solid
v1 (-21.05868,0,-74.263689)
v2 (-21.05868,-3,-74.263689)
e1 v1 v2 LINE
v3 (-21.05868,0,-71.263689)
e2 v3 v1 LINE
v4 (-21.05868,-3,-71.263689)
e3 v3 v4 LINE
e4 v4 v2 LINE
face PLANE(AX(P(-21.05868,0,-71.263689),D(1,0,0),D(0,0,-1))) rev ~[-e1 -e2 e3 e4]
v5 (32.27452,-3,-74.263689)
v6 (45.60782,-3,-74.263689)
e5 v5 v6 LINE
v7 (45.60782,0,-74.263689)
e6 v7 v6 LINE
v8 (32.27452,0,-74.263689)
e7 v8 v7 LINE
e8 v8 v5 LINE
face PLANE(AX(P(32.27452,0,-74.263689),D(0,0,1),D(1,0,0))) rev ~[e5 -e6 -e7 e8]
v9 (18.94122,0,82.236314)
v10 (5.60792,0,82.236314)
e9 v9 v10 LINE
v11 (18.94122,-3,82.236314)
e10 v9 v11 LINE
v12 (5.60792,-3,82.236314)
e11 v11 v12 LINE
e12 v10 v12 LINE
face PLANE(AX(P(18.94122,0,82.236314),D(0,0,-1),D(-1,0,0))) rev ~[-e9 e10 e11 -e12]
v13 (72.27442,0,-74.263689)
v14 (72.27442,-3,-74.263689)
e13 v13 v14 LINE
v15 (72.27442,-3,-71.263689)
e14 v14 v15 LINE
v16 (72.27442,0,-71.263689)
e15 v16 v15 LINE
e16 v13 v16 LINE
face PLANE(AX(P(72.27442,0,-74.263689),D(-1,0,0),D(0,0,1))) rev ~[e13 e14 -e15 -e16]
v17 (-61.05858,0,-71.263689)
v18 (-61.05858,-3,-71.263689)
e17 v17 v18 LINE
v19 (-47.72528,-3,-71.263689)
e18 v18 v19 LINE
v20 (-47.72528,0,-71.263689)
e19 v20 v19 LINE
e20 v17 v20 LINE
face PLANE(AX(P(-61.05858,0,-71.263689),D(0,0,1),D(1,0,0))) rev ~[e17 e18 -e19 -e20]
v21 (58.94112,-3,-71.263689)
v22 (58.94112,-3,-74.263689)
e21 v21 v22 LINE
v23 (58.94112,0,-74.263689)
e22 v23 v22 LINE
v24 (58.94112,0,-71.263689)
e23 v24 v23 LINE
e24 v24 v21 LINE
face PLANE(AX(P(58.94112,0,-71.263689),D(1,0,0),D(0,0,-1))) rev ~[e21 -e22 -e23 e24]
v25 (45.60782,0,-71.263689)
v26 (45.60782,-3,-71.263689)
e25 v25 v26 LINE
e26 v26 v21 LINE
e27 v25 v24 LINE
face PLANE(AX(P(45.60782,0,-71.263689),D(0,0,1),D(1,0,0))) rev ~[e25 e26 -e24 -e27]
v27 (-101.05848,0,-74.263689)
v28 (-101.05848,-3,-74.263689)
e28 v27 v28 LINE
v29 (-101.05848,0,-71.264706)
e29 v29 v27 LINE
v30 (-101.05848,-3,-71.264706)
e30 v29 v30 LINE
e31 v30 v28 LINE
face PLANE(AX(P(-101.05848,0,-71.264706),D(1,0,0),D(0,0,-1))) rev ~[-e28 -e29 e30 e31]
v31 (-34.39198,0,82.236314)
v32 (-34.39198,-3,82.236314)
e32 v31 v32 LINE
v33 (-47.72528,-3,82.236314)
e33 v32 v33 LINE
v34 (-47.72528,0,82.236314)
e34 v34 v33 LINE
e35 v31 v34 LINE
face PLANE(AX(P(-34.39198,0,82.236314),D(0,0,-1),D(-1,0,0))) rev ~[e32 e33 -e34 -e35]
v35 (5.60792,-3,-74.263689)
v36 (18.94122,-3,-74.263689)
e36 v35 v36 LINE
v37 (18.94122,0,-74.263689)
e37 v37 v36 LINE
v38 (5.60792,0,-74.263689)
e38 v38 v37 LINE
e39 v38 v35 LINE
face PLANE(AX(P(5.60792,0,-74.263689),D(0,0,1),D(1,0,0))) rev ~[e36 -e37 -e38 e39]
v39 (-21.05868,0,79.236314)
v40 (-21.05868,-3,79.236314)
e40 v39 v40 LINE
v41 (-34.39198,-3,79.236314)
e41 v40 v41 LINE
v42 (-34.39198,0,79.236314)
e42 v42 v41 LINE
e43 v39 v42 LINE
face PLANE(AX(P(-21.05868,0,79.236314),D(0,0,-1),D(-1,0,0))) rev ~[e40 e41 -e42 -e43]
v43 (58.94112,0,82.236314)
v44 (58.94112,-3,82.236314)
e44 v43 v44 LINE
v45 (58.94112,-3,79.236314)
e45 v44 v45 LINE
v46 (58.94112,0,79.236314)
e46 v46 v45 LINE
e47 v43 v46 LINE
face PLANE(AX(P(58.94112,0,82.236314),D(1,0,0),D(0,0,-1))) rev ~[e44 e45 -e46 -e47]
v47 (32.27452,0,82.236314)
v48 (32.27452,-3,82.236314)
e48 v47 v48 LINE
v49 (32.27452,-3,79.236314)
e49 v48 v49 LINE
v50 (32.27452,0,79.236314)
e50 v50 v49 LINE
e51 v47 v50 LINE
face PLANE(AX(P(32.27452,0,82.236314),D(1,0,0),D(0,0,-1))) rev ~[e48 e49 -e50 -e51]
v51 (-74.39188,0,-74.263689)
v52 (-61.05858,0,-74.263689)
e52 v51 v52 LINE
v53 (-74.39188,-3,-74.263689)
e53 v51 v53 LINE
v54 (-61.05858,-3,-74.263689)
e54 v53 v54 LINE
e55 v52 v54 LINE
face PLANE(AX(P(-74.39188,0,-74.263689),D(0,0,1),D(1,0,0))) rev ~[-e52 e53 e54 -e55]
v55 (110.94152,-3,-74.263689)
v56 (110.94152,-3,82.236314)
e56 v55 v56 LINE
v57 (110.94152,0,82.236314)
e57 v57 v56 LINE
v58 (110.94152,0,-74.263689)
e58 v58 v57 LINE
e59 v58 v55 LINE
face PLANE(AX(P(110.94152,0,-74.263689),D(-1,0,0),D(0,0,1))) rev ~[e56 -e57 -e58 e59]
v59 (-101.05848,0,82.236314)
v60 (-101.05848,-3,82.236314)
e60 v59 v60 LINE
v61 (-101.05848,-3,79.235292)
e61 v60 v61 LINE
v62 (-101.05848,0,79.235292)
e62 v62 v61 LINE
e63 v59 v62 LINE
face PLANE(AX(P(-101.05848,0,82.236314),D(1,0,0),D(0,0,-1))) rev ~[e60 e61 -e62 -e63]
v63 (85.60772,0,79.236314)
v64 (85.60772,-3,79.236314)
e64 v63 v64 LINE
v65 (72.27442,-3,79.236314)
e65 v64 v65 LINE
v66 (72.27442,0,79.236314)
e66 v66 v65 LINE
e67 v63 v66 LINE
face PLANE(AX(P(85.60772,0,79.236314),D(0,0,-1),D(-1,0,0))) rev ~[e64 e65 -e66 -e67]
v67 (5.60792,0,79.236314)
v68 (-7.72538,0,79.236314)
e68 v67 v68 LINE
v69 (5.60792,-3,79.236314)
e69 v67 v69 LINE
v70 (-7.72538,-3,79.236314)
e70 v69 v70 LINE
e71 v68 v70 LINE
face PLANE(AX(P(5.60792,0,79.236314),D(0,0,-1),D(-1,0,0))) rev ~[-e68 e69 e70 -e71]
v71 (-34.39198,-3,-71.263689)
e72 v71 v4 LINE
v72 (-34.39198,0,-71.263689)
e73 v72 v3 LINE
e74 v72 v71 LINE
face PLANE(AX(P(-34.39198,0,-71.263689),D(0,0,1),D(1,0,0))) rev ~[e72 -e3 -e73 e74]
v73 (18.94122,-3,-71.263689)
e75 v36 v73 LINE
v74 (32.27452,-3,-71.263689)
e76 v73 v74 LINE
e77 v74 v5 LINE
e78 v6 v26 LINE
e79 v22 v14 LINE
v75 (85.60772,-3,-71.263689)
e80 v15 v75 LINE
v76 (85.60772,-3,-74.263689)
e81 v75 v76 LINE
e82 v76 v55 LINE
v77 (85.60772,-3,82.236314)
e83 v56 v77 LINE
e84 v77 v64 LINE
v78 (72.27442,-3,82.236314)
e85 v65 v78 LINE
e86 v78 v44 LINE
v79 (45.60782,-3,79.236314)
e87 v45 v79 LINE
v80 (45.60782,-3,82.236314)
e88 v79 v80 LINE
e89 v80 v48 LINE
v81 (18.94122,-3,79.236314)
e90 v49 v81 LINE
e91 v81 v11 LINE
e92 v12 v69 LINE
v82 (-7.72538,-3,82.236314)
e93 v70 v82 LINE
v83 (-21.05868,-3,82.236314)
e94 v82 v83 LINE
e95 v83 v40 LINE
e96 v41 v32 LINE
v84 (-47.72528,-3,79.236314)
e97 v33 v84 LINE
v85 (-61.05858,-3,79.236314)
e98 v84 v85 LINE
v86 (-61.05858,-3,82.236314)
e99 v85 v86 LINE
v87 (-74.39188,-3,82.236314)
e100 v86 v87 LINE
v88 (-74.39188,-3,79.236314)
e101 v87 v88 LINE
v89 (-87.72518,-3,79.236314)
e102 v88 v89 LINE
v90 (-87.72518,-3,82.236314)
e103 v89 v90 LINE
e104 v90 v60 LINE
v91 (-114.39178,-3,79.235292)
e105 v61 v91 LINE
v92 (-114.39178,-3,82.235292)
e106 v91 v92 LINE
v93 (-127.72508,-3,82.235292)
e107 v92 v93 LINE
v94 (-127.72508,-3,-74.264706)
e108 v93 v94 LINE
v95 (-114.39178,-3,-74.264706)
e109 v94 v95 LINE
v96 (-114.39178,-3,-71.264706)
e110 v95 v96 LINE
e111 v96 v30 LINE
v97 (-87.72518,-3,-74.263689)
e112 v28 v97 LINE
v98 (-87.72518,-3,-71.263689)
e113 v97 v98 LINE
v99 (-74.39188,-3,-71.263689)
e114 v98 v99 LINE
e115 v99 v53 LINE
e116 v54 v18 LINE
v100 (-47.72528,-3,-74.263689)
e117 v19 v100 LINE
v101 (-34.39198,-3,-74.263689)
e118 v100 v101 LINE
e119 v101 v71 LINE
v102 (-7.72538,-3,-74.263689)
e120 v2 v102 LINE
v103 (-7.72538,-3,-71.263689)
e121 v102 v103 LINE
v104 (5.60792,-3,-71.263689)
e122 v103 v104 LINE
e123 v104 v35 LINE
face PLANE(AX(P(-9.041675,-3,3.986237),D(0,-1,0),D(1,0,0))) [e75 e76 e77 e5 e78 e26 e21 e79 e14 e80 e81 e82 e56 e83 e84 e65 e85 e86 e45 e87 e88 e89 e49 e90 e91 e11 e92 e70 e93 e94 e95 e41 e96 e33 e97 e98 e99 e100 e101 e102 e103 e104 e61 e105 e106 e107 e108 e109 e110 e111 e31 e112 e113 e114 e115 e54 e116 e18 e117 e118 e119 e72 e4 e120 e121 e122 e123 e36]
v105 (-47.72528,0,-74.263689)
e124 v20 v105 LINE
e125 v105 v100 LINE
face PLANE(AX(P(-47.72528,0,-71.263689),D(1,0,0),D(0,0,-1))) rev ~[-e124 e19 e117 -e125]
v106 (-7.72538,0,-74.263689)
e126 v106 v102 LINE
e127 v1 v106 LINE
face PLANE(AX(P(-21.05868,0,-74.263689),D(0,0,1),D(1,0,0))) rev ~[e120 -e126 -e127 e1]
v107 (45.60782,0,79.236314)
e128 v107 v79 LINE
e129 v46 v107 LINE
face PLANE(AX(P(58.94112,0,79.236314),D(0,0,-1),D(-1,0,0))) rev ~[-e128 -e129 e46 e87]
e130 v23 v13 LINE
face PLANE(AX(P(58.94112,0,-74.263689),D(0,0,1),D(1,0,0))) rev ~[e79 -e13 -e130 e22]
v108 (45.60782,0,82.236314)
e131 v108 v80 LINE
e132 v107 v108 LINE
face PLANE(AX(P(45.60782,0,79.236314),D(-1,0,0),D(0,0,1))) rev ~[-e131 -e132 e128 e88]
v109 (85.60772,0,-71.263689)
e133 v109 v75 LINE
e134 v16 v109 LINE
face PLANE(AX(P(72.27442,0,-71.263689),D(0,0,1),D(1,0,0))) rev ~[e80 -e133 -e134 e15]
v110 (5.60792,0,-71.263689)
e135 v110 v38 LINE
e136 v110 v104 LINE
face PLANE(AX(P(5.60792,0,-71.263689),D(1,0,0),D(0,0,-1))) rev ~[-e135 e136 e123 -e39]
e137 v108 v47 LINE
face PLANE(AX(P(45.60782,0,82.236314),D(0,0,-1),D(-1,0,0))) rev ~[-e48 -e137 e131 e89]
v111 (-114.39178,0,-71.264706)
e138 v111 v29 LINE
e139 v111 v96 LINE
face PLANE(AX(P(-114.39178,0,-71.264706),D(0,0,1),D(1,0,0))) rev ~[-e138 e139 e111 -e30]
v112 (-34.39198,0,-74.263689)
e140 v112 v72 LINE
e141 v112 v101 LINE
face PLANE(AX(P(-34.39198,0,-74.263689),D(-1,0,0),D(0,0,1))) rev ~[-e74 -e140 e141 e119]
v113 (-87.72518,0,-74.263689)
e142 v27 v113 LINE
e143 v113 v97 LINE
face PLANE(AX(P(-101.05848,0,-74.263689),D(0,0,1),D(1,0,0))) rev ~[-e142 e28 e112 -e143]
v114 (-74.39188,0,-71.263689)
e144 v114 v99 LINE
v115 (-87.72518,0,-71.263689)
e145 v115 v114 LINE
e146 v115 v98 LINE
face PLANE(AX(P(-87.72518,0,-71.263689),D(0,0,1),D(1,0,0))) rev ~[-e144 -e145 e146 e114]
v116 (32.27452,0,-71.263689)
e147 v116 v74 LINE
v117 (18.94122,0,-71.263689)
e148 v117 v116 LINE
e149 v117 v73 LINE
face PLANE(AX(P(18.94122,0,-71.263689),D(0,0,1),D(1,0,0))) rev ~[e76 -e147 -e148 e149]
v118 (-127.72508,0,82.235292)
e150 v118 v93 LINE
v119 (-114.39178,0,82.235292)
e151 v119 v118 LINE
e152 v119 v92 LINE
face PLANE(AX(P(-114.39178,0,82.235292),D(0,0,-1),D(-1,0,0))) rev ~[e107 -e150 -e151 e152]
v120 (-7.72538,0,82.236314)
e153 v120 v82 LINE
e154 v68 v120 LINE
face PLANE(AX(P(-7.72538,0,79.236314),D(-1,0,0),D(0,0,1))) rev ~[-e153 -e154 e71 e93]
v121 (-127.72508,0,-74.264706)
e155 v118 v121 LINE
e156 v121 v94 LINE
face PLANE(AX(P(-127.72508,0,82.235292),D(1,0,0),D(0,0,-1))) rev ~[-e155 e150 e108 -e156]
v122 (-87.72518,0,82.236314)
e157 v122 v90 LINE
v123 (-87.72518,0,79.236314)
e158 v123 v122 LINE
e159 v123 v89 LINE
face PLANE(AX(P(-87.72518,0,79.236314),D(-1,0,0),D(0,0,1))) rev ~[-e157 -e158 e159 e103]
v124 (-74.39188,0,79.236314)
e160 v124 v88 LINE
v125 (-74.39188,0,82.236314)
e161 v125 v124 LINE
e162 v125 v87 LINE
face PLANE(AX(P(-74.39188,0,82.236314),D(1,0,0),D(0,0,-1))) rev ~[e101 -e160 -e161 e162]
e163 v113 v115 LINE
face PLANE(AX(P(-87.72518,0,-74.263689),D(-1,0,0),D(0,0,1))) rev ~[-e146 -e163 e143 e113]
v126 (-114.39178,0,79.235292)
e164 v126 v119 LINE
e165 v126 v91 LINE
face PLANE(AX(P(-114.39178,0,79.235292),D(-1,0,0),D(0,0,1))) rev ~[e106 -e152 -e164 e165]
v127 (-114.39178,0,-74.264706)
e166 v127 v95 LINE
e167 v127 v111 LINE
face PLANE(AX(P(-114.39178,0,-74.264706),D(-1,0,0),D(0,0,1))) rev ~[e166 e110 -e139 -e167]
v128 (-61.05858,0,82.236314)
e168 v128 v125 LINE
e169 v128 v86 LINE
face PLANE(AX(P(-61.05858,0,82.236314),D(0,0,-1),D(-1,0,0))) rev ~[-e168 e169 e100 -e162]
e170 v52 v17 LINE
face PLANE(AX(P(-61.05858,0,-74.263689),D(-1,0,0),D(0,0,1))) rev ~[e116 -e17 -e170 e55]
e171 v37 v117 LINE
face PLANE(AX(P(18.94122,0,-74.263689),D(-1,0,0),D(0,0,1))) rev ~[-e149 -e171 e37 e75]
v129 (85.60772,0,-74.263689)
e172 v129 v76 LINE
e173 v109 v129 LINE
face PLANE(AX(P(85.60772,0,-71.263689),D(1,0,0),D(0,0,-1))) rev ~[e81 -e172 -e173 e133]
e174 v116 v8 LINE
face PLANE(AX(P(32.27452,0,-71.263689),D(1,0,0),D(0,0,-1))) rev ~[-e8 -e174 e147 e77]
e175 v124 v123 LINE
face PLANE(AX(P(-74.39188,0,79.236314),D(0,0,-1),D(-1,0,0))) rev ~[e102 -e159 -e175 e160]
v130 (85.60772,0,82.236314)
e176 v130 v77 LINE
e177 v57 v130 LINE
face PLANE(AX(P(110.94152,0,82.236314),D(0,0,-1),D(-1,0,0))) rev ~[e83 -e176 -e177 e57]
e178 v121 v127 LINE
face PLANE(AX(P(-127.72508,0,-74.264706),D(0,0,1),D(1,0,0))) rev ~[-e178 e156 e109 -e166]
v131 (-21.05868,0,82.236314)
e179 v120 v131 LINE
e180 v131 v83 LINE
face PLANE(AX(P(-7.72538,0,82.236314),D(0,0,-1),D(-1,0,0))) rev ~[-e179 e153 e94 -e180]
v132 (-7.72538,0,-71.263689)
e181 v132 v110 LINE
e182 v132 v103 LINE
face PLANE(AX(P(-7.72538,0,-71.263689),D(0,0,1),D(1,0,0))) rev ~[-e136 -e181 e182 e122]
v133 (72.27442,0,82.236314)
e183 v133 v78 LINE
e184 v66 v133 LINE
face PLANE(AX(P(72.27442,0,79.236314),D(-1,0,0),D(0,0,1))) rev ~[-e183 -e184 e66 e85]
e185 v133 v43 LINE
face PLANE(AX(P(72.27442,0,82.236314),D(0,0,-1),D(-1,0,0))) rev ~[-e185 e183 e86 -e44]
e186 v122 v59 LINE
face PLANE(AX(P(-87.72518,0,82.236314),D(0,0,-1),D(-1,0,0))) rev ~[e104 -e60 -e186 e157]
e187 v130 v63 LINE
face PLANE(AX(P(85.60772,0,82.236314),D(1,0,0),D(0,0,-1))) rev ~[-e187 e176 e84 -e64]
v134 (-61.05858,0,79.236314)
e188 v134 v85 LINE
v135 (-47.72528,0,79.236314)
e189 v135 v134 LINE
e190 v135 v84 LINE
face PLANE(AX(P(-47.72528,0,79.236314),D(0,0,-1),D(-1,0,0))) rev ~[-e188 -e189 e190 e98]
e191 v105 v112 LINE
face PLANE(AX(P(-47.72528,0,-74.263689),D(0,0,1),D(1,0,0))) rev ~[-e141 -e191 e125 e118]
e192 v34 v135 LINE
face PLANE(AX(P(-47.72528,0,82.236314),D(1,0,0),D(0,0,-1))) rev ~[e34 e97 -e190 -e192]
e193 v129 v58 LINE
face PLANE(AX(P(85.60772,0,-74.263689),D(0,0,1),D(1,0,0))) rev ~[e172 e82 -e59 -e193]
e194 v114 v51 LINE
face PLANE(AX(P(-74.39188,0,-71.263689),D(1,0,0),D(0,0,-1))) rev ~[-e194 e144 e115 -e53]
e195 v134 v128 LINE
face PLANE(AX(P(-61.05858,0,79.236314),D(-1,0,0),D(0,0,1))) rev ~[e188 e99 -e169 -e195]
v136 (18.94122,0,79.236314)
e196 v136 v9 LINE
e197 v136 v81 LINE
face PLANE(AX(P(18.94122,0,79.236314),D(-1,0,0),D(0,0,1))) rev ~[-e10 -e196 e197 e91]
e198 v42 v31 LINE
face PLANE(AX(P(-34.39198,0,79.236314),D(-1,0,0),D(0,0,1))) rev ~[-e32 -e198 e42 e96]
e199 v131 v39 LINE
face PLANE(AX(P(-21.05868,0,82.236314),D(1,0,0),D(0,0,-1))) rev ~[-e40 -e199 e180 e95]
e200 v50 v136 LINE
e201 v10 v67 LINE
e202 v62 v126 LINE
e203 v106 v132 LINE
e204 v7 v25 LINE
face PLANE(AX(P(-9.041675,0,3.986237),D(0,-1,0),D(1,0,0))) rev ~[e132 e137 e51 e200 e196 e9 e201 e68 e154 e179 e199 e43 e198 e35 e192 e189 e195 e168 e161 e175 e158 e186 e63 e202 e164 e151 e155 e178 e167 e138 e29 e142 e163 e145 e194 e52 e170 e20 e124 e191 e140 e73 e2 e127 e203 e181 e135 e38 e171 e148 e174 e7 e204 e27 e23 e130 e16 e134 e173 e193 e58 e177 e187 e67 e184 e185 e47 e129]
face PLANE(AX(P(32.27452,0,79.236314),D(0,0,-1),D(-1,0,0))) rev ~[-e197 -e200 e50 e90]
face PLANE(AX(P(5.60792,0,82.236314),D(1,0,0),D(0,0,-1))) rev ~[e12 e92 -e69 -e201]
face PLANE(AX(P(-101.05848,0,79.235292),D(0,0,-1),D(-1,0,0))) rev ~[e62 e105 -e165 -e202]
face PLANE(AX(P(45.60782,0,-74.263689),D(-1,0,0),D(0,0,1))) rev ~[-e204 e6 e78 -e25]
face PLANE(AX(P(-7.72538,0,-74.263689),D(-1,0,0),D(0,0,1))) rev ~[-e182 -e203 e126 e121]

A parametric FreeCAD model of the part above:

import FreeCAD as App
import Part
import Sketcher

V = App.Vector


def add_polygon(sketch, points):
    """Adds a closed chain of lines whose ends are joined by coincident constraints."""
    first, n = sketch.GeometryCount, len(points)
    for a, b in zip(points, points[1:] + points[:1]):
        sketch.addGeometry(Part.LineSegment(App.Vector(*a, 0), App.Vector(*b, 0)), False)
    for i in range(n):
        sketch.addConstraint(Sketcher.Constraint("Coincident", first + i, 2, first + (i + 1) % n, 1))

doc = App.newDocument("Part")
body = doc.addObject("PartDesign::Body", "Body")

# Sketch on XZ plane
sketch1 = doc.addObject("Sketcher::SketchObject", "Sketch")
body.addObject(sketch1)
sketch1.AttachmentSupport = (doc.XZ_Plane, [""])
sketch1.MapMode = "FlatFace"
add_polygon(sketch1, [(-74.4, 79.2), (-87.7, 79.2), (-87.7, 82.2), (-101.1, 82.2), (-101.1, 79.2), (-114.4, 79.2), (-114.4, 82.2), (-127.7, 82.2), (-127.7, -74.3), (-114.4, -74.3), (-114.4, -71.3), (-101.1, -71.3), (-101.1, -74.3), (-87.7, -74.3), (-87.7, -71.3), (-74.4, -71.3), (-74.4, -74.3), (-61.1, -74.3), (-61.1, -71.3), (-47.7, -71.3), (-47.7, -74.3), (-34.4, -74.3), (-34.4, -71.3), (-21.1, -71.3), (-21.1, -74.3), (-7.7, -74.3), (-7.7, -71.3), (5.6, -71.3), (5.6, -74.3), (18.9, -74.3), (18.9, -71.3), (32.3, -71.3), (32.3, -74.3), (45.6, -74.3), (45.6, -71.3), (58.9, -71.3), (58.9, -74.3), (72.3, -74.3), (72.3, -71.3), (85.6, -71.3), (85.6, -74.3), (110.9, -74.3), (110.9, 82.2), (85.6, 82.2), (85.6, 79.2), (72.3, 79.2), (72.3, 82.2), (58.9, 82.2), (58.9, 79.2), (45.6, 79.2), (45.6, 82.2), (32.3, 82.2), (32.3, 79.2), (18.9, 79.2), (18.9, 82.2), (5.6, 82.2), (5.6, 79.2), (-7.7, 79.2), (-7.7, 82.2), (-21.1, 82.2), (-21.1, 79.2), (-34.4, 79.2), (-34.4, 82.2), (-47.7, 82.2), (-47.7, 79.2), (-61.1, 79.2), (-61.1, 82.2), (-74.4, 82.2)])  # lines 0-67
sketch1.addConstraint([
    Sketcher.Constraint("Horizontal", 0),
    Sketcher.Constraint("Vertical", 1),
    Sketcher.Constraint("Horizontal", 2),
    Sketcher.Constraint("Vertical", 3),
    Sketcher.Constraint("Horizontal", 4),
    Sketcher.Constraint("Vertical", 5),
    Sketcher.Constraint("Horizontal", 6),
    Sketcher.Constraint("Vertical", 7),
    Sketcher.Constraint("Horizontal", 8),
    Sketcher.Constraint("Vertical", 9),
    Sketcher.Constraint("Horizontal", 10),
    Sketcher.Constraint("Vertical", 11),
    Sketcher.Constraint("Horizontal", 12),
    Sketcher.Constraint("Vertical", 13),
    Sketcher.Constraint("Horizontal", 14),
    Sketcher.Constraint("Vertical", 15),
    Sketcher.Constraint("Horizontal", 16),
    Sketcher.Constraint("Vertical", 17),
    Sketcher.Constraint("Horizontal", 18),
    Sketcher.Constraint("Vertical", 19),
    Sketcher.Constraint("Horizontal", 20),
    Sketcher.Constraint("Vertical", 21),
    Sketcher.Constraint("Horizontal", 22),
    Sketcher.Constraint("Vertical", 23),
    Sketcher.Constraint("Horizontal", 24),
    Sketcher.Constraint("Vertical", 25),
    Sketcher.Constraint("Horizontal", 26),
    Sketcher.Constraint("Vertical", 27),
    Sketcher.Constraint("Horizontal", 28),
    Sketcher.Constraint("Vertical", 29),
    Sketcher.Constraint("Horizontal", 30),
    Sketcher.Constraint("Vertical", 31),
    Sketcher.Constraint("Horizontal", 32),
    Sketcher.Constraint("Vertical", 33),
    Sketcher.Constraint("Horizontal", 34),
    Sketcher.Constraint("Vertical", 35),
    Sketcher.Constraint("Horizontal", 36),
    Sketcher.Constraint("Vertical", 37),
    Sketcher.Constraint("Horizontal", 38),
    Sketcher.Constraint("Vertical", 39),
    Sketcher.Constraint("Horizontal", 40),
    Sketcher.Constraint("Vertical", 41),
    Sketcher.Constraint("Horizontal", 42),
    Sketcher.Constraint("Vertical", 43),
    Sketcher.Constraint("Horizontal", 44),
    Sketcher.Constraint("Vertical", 45),
    Sketcher.Constraint("Horizontal", 46),
    Sketcher.Constraint("Vertical", 47),
    Sketcher.Constraint("Horizontal", 48),
    Sketcher.Constraint("Vertical", 49),
    Sketcher.Constraint("Horizontal", 50),
    Sketcher.Constraint("Vertical", 51),
    Sketcher.Constraint("Horizontal", 52),
    Sketcher.Constraint("Vertical", 53),
    Sketcher.Constraint("Horizontal", 54),
    Sketcher.Constraint("Vertical", 55),
    Sketcher.Constraint("Horizontal", 56),
    Sketcher.Constraint("Vertical", 57),
    Sketcher.Constraint("Horizontal", 58),
    Sketcher.Constraint("Vertical", 59),
    Sketcher.Constraint("Horizontal", 60),
    Sketcher.Constraint("Vertical", 61),
    Sketcher.Constraint("Horizontal", 62),
    Sketcher.Constraint("Vertical", 63),
    Sketcher.Constraint("Horizontal", 64),
    Sketcher.Constraint("Vertical", 65),
    Sketcher.Constraint("Horizontal", 66),
    Sketcher.Constraint("Vertical", 67),
    Sketcher.Constraint("Horizontal", 12, 2, 15, 2),
    Sketcher.Constraint("Horizontal", 14, 2, 17, 2),
    Sketcher.Constraint("Horizontal", 16, 2, 19, 2),
    Sketcher.Constraint("Horizontal", 18, 2, 21, 2),
    Sketcher.Constraint("Horizontal", 20, 2, 23, 2),
    Sketcher.Constraint("Horizontal", 22, 2, 25, 2),
    Sketcher.Constraint("Horizontal", 24, 2, 27, 2),
    Sketcher.Constraint("Horizontal", 26, 2, 29, 2),
    Sketcher.Constraint("Horizontal", 28, 2, 31, 2),
    Sketcher.Constraint("Horizontal", 30, 2, 33, 2),
    Sketcher.Constraint("Horizontal", 32, 2, 35, 2),
    Sketcher.Constraint("Horizontal", 34, 2, 37, 2),
    Sketcher.Constraint("Horizontal", 36, 2, 39, 2),
    Sketcher.Constraint("Horizontal", 2, 2, 41, 2),
    Sketcher.Constraint("Horizontal", 0, 2, 43, 2),
    Sketcher.Constraint("Horizontal", 42, 2, 45, 2),
    Sketcher.Constraint("Horizontal", 44, 2, 47, 2),
    Sketcher.Constraint("Horizontal", 46, 2, 49, 2),
    Sketcher.Constraint("Horizontal", 48, 2, 51, 2),
    Sketcher.Constraint("Horizontal", 50, 2, 53, 2),
    Sketcher.Constraint("Horizontal", 52, 2, 55, 2),
    Sketcher.Constraint("Horizontal", 54, 2, 57, 2),
    Sketcher.Constraint("Horizontal", 56, 2, 59, 2),
    Sketcher.Constraint("Horizontal", 58, 2, 61, 2),
    Sketcher.Constraint("Horizontal", 60, 2, 63, 2),
    Sketcher.Constraint("Horizontal", 62, 2, 65, 2),
    Sketcher.Constraint("Vertical", 5, 2, 8, 2),
    Sketcher.Constraint("Vertical", 3, 2, 10, 2),
    Sketcher.Constraint("Vertical", 1, 2, 12, 2),
    Sketcher.Constraint("Vertical", 39, 2, 42, 2),
    Sketcher.Constraint("Vertical", 37, 2, 44, 2),
    Sketcher.Constraint("Vertical", 35, 2, 46, 2),
    Sketcher.Constraint("Vertical", 33, 2, 48, 2),
    Sketcher.Constraint("Vertical", 31, 2, 50, 2),
    Sketcher.Constraint("Vertical", 29, 2, 52, 2),
    Sketcher.Constraint("Vertical", 27, 2, 54, 2),
    Sketcher.Constraint("Vertical", 25, 2, 56, 2),
    Sketcher.Constraint("Vertical", 23, 2, 58, 2),
    Sketcher.Constraint("Vertical", 21, 2, 60, 2),
    Sketcher.Constraint("Vertical", 19, 2, 62, 2),
    Sketcher.Constraint("Vertical", 17, 2, 64, 2),
    Sketcher.Constraint("Vertical", 15, 2, 66, 2),
    Sketcher.Constraint("Equal", 0, 2),
    Sketcher.Constraint("Equal", 2, 4),
    Sketcher.Constraint("Equal", 4, 6),
    Sketcher.Constraint("Equal", 14, 16),
    Sketcher.Constraint("Equal", 16, 18),
    Sketcher.Constraint("Equal", 18, 20),
    Sketcher.Constraint("Equal", 20, 22),
    Sketcher.Constraint("Equal", 22, 24),
    Sketcher.Constraint("Equal", 24, 26),
    Sketcher.Constraint("Equal", 26, 28),
    Sketcher.Constraint("Equal", 28, 30),
    Sketcher.Constraint("Equal", 30, 32),
    Sketcher.Constraint("Equal", 32, 34),
    Sketcher.Constraint("Equal", 34, 36),
    Sketcher.Constraint("Equal", 36, 38),
    Sketcher.Constraint("Equal", 1, 5),
    Sketcher.Constraint("Equal", 5, 9),
    Sketcher.Constraint("Equal", 9, 13),
    Sketcher.Constraint("DistanceY", 1, 1, 1, 2, 3.0),
    Sketcher.Constraint("DistanceY", 7, 2, 7, 1, 156.499998),
    Sketcher.Constraint("DistanceX", 0, 2, 0, 1, 13.3333),
    Sketcher.Constraint("DistanceX", 40, 1, 40, 2, 25.3338),
    Sketcher.Constraint("DistanceY", 3, 2, 3, 1, 3.001022),
    Sketcher.Constraint("DistanceY", 11, 2, 11, 1, 2.998983),
    Sketcher.Constraint("DistanceX", 0, 2, -1, 1, 87.72518),
    Sketcher.Constraint("DistanceY", -1, 1, 3, 2, 79.235292),
])
pad1 = doc.addObject("PartDesign::Pad", "Pad")
body.addObject(pad1)
pad1.Profile = sketch1
pad1.Length = 3

doc.recompute()
